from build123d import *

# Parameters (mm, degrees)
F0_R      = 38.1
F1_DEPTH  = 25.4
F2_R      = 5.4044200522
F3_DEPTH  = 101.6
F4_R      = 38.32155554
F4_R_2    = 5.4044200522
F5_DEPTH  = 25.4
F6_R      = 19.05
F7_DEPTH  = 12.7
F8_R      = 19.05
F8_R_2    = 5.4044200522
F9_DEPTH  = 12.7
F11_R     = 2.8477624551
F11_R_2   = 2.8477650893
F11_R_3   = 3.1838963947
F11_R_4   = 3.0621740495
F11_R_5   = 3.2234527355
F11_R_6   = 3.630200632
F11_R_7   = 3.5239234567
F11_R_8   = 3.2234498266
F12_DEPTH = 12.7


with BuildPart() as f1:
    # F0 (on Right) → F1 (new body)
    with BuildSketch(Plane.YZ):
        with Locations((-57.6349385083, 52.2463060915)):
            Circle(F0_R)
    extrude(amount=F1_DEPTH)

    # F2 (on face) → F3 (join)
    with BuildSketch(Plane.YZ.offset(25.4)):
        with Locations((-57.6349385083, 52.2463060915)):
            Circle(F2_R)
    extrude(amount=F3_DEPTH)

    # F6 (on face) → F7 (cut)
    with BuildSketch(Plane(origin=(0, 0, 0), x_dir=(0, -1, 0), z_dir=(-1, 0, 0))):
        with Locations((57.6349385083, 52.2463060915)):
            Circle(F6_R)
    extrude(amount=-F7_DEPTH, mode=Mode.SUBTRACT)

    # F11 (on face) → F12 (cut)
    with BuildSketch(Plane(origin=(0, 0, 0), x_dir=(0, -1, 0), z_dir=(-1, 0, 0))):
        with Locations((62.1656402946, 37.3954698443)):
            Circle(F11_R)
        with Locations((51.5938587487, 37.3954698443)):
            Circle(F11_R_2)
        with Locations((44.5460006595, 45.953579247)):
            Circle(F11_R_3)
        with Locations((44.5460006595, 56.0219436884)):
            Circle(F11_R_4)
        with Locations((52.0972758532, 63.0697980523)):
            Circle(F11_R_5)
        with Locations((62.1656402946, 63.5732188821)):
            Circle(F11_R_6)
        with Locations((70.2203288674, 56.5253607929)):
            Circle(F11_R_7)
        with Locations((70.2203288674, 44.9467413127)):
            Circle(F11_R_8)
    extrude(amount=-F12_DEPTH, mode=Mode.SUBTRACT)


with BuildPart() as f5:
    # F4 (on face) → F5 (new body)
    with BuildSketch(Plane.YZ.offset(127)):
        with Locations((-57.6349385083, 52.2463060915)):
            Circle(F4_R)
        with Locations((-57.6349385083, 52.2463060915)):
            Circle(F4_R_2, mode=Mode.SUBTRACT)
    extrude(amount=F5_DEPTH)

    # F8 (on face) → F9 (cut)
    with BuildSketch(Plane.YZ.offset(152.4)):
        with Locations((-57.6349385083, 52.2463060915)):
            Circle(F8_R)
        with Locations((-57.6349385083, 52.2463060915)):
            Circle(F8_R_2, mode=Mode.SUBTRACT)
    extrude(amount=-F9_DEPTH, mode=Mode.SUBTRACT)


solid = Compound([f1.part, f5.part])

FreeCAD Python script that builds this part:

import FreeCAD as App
import Part
import Sketcher
Q = App.Units.Quantity

doc = App.newDocument("Part")
body = doc.addObject("PartDesign::Body", "Body")

sketch1 = body.newObject("Sketcher::SketchObject", "Sketch")
sketch1.AttachmentSupport = (doc.getObject("YZ_Plane"), [""])
sketch1.MapMode = "FlatFace"
sketch1.addGeometry(Part.Circle(App.Vector(-57.634939, 52.246306, 0), App.Vector(0, 0, 1), 38.1), False)
sketch1.addConstraint(Sketcher.Constraint("Diameter", 0, Q("3 in")))
sketch1.addConstraint(Sketcher.Constraint("DistanceX", 0, 3, -1, 1, Q("57.634939 mm")))
sketch1.addConstraint(Sketcher.Constraint("DistanceY", -1, 1, 0, 3, Q("52.246306 mm")))
pad1 = body.newObject("PartDesign::Pad", "Pad")
pad1.Profile = sketch1
pad1.Length = Q("1 in")

sketch2 = body.newObject("Sketcher::SketchObject", "Sketch001")
sketch2.AttachmentSupport = (doc.getObject("YZ_Plane"), [""])
sketch2.MapMode = "FlatFace"
sketch2.AttachmentOffset = App.Placement(App.Vector(0, 0, 1 * 25.4), App.Rotation())
sketch2.addGeometry(Part.Circle(App.Vector(-57.634939, 52.246306, 0), App.Vector(0, 0, 1), 5.40442), False)
sketch2.addConstraint(Sketcher.Constraint("Diameter", 0, Q("10.80884 mm")))
sketch2.addConstraint(Sketcher.Constraint("DistanceX", 0, 3, -1, 1, Q("57.634939 mm")))
sketch2.addConstraint(Sketcher.Constraint("DistanceY", -1, 1, 0, 3, Q("52.246306 mm")))
pad2 = body.newObject("PartDesign::Pad", "Pad001")
pad2.Profile = sketch2
pad2.Length = Q("4 in")

sketch3 = body.newObject("Sketcher::SketchObject", "Sketch002")
sketch3.AttachmentSupport = (doc.getObject("YZ_Plane"), [""])
sketch3.MapMode = "FlatFace"
sketch3.addGeometry(Part.Circle(App.Vector(-57.634939, 52.246306, 0), App.Vector(0, 0, 1), 19.05), False)
sketch3.addConstraint(Sketcher.Constraint("Diameter", 0, Q("1.5 in")))
sketch3.addConstraint(Sketcher.Constraint("DistanceX", 0, 3, -1, 1, Q("57.634939 mm")))
sketch3.addConstraint(Sketcher.Constraint("DistanceY", -1, 1, 0, 3, Q("52.246306 mm")))
pocket1 = body.newObject("PartDesign::Pocket", "Pocket")
pocket1.Profile = sketch3
pocket1.Length = Q("0.5 in")
pocket1.Reversed = True

sketch4 = body.newObject("Sketcher::SketchObject", "Sketch003")
sketch4.AttachmentSupport = (doc.getObject("YZ_Plane"), [""])
sketch4.MapMode = "FlatFace"
sketch4.addGeometry(Part.Circle(App.Vector(-62.16564, 37.39547, 0), App.Vector(0, 0, 1), 2.847762), False)
sketch4.addGeometry(Part.Circle(App.Vector(-51.593859, 37.39547, 0), App.Vector(0, 0, 1), 2.847765), False)
sketch4.addGeometry(Part.Circle(App.Vector(-44.546001, 45.953579, 0), App.Vector(0, 0, 1), 3.183896), False)
sketch4.addGeometry(Part.Circle(App.Vector(-44.546001, 56.021944, 0), App.Vector(0, 0, 1), 3.062174), False)
sketch4.addGeometry(Part.Circle(App.Vector(-52.097276, 63.069798, 0), App.Vector(0, 0, 1), 3.223453), False)
sketch4.addGeometry(Part.Circle(App.Vector(-62.16564, 63.573219, 0), App.Vector(0, 0, 1), 3.630201), False)
sketch4.addGeometry(Part.Circle(App.Vector(-70.220329, 56.525361, 0), App.Vector(0, 0, 1), 3.523923), False)
sketch4.addGeometry(Part.Circle(App.Vector(-70.220329, 44.946741, 0), App.Vector(0, 0, 1), 3.22345), False)
sketch4.addConstraint(Sketcher.Constraint("Horizontal", 0, 3, 1, 3))
sketch4.addConstraint(Sketcher.Constraint("Vertical", 2, 3, 3, 3))
sketch4.addConstraint(Sketcher.Constraint("Vertical", 0, 3, 5, 3))
sketch4.addConstraint(Sketcher.Constraint("Vertical", 6, 3, 7, 3))
sketch4.addConstraint(Sketcher.Constraint("Diameter", 5, Q("7.260401 mm")))
sketch4.addConstraint(Sketcher.Constraint("Diameter", 7, Q("6.4469 mm")))
sketch4.addConstraint(Sketcher.Constraint("Diameter", 1, Q("5.69553 mm")))
sketch4.addConstraint(Sketcher.Constraint("Diameter", 3, Q("6.124348 mm")))
sketch4.addConstraint(Sketcher.Constraint("Diameter", 0, Q("5.695525 mm")))
sketch4.addConstraint(Sketcher.Constraint("Diameter", 2, Q("6.367793 mm")))
sketch4.addConstraint(Sketcher.Constraint("Diameter", 4, Q("6.446905 mm")))
sketch4.addConstraint(Sketcher.Constraint("Diameter", 6, Q("7.047847 mm")))
sketch4.addConstraint(Sketcher.Constraint("DistanceX", 2, 3, -1, 1, Q("44.546001 mm")))
sketch4.addConstraint(Sketcher.Constraint("DistanceY", -1, 1, 4, 3, Q("63.069798 mm")))
sketch4.addConstraint(Sketcher.Constraint("DistanceX", 0, 3, -1, 1, Q("62.16564 mm")))
sketch4.addConstraint(Sketcher.Constraint("DistanceY", -1, 1, 0, 3, Q("37.39547 mm")))
sketch4.addConstraint(Sketcher.Constraint("DistanceX", 1, 3, -1, 1, Q("51.593859 mm")))
sketch4.addConstraint(Sketcher.Constraint("DistanceY", -1, 1, 2, 3, Q("45.953579 mm")))
sketch4.addConstraint(Sketcher.Constraint("DistanceY", -1, 1, 5, 3, Q("63.573219 mm")))
sketch4.addConstraint(Sketcher.Constraint("DistanceX", 6, 3, -1, 1, Q("70.220329 mm")))
sketch4.addConstraint(Sketcher.Constraint("DistanceY", -1, 1, 6, 3, Q("56.525361 mm")))
sketch4.addConstraint(Sketcher.Constraint("DistanceY", -1, 1, 7, 3, Q("44.946741 mm")))
sketch4.addConstraint(Sketcher.Constraint("DistanceY", -1, 1, 3, 3, Q("56.021944 mm")))
sketch4.addConstraint(Sketcher.Constraint("DistanceX", 4, 3, -1, 1, Q("52.097276 mm")))
pocket2 = body.newObject("PartDesign::Pocket", "Pocket001")
pocket2.Profile = sketch4
pocket2.Length = Q("0.5 in")
pocket2.Reversed = True
body2 = doc.addObject("PartDesign::Body", "Body001")

sketch5 = body2.newObject("Sketcher::SketchObject", "Sketch004")
sketch5.AttachmentSupport = (doc.getObject("YZ_Plane001"), [""])
sketch5.MapMode = "FlatFace"
sketch5.AttachmentOffset = App.Placement(App.Vector(0, 0, 5 * 25.4), App.Rotation())
sketch5.addGeometry(Part.Circle(App.Vector(-57.634939, 52.246306, 0), App.Vector(0, 0, 1), 38.321556), False)
sketch5.addGeometry(Part.Circle(App.Vector(-57.634939, 52.246306, 0), App.Vector(0, 0, 1), 5.40442), False)
sketch5.addConstraint(Sketcher.Constraint("Coincident", 1, 3, 0, 3))
sketch5.addConstraint(Sketcher.Constraint("Diameter", 0, Q("76.643111 mm")))
sketch5.addConstraint(Sketcher.Constraint("Diameter", 1, Q("10.80884 mm")))
sketch5.addConstraint(Sketcher.Constraint("DistanceX", 0, 3, -1, 1, Q("57.634939 mm")))
sketch5.addConstraint(Sketcher.Constraint("DistanceY", -1, 1, 0, 3, Q("52.246306 mm")))
pad3 = body2.newObject("PartDesign::Pad", "Pad002")
pad3.Profile = sketch5
pad3.Length = Q("1 in")

sketch6 = body2.newObject("Sketcher::SketchObject", "Sketch005")
sketch6.AttachmentSupport = (doc.getObject("YZ_Plane001"), [""])
sketch6.MapMode = "FlatFace"
sketch6.AttachmentOffset = App.Placement(App.Vector(0, 0, 6 * 25.4), App.Rotation())
sketch6.addGeometry(Part.Circle(App.Vector(-57.634939, 52.246306, 0), App.Vector(0, 0, 1), 19.05), False)
sketch6.addGeometry(Part.Circle(App.Vector(-57.634939, 52.246306, 0), App.Vector(0, 0, 1), 5.40442), False)
sketch6.addConstraint(Sketcher.Constraint("Coincident", 1, 3, 0, 3))
sketch6.addConstraint(Sketcher.Constraint("Diameter", 0, Q("1.5 in")))
sketch6.addConstraint(Sketcher.Constraint("Diameter", 1, Q("10.80884 mm")))
sketch6.addConstraint(Sketcher.Constraint("DistanceX", 0, 3, -1, 1, Q("57.634939 mm")))
sketch6.addConstraint(Sketcher.Constraint("DistanceY", -1, 1, 0, 3, Q("52.246306 mm")))
pocket3 = body2.newObject("PartDesign::Pocket", "Pocket002")
pocket3.Profile = sketch6
pocket3.Length = Q("0.5 in")

doc.recompute()
